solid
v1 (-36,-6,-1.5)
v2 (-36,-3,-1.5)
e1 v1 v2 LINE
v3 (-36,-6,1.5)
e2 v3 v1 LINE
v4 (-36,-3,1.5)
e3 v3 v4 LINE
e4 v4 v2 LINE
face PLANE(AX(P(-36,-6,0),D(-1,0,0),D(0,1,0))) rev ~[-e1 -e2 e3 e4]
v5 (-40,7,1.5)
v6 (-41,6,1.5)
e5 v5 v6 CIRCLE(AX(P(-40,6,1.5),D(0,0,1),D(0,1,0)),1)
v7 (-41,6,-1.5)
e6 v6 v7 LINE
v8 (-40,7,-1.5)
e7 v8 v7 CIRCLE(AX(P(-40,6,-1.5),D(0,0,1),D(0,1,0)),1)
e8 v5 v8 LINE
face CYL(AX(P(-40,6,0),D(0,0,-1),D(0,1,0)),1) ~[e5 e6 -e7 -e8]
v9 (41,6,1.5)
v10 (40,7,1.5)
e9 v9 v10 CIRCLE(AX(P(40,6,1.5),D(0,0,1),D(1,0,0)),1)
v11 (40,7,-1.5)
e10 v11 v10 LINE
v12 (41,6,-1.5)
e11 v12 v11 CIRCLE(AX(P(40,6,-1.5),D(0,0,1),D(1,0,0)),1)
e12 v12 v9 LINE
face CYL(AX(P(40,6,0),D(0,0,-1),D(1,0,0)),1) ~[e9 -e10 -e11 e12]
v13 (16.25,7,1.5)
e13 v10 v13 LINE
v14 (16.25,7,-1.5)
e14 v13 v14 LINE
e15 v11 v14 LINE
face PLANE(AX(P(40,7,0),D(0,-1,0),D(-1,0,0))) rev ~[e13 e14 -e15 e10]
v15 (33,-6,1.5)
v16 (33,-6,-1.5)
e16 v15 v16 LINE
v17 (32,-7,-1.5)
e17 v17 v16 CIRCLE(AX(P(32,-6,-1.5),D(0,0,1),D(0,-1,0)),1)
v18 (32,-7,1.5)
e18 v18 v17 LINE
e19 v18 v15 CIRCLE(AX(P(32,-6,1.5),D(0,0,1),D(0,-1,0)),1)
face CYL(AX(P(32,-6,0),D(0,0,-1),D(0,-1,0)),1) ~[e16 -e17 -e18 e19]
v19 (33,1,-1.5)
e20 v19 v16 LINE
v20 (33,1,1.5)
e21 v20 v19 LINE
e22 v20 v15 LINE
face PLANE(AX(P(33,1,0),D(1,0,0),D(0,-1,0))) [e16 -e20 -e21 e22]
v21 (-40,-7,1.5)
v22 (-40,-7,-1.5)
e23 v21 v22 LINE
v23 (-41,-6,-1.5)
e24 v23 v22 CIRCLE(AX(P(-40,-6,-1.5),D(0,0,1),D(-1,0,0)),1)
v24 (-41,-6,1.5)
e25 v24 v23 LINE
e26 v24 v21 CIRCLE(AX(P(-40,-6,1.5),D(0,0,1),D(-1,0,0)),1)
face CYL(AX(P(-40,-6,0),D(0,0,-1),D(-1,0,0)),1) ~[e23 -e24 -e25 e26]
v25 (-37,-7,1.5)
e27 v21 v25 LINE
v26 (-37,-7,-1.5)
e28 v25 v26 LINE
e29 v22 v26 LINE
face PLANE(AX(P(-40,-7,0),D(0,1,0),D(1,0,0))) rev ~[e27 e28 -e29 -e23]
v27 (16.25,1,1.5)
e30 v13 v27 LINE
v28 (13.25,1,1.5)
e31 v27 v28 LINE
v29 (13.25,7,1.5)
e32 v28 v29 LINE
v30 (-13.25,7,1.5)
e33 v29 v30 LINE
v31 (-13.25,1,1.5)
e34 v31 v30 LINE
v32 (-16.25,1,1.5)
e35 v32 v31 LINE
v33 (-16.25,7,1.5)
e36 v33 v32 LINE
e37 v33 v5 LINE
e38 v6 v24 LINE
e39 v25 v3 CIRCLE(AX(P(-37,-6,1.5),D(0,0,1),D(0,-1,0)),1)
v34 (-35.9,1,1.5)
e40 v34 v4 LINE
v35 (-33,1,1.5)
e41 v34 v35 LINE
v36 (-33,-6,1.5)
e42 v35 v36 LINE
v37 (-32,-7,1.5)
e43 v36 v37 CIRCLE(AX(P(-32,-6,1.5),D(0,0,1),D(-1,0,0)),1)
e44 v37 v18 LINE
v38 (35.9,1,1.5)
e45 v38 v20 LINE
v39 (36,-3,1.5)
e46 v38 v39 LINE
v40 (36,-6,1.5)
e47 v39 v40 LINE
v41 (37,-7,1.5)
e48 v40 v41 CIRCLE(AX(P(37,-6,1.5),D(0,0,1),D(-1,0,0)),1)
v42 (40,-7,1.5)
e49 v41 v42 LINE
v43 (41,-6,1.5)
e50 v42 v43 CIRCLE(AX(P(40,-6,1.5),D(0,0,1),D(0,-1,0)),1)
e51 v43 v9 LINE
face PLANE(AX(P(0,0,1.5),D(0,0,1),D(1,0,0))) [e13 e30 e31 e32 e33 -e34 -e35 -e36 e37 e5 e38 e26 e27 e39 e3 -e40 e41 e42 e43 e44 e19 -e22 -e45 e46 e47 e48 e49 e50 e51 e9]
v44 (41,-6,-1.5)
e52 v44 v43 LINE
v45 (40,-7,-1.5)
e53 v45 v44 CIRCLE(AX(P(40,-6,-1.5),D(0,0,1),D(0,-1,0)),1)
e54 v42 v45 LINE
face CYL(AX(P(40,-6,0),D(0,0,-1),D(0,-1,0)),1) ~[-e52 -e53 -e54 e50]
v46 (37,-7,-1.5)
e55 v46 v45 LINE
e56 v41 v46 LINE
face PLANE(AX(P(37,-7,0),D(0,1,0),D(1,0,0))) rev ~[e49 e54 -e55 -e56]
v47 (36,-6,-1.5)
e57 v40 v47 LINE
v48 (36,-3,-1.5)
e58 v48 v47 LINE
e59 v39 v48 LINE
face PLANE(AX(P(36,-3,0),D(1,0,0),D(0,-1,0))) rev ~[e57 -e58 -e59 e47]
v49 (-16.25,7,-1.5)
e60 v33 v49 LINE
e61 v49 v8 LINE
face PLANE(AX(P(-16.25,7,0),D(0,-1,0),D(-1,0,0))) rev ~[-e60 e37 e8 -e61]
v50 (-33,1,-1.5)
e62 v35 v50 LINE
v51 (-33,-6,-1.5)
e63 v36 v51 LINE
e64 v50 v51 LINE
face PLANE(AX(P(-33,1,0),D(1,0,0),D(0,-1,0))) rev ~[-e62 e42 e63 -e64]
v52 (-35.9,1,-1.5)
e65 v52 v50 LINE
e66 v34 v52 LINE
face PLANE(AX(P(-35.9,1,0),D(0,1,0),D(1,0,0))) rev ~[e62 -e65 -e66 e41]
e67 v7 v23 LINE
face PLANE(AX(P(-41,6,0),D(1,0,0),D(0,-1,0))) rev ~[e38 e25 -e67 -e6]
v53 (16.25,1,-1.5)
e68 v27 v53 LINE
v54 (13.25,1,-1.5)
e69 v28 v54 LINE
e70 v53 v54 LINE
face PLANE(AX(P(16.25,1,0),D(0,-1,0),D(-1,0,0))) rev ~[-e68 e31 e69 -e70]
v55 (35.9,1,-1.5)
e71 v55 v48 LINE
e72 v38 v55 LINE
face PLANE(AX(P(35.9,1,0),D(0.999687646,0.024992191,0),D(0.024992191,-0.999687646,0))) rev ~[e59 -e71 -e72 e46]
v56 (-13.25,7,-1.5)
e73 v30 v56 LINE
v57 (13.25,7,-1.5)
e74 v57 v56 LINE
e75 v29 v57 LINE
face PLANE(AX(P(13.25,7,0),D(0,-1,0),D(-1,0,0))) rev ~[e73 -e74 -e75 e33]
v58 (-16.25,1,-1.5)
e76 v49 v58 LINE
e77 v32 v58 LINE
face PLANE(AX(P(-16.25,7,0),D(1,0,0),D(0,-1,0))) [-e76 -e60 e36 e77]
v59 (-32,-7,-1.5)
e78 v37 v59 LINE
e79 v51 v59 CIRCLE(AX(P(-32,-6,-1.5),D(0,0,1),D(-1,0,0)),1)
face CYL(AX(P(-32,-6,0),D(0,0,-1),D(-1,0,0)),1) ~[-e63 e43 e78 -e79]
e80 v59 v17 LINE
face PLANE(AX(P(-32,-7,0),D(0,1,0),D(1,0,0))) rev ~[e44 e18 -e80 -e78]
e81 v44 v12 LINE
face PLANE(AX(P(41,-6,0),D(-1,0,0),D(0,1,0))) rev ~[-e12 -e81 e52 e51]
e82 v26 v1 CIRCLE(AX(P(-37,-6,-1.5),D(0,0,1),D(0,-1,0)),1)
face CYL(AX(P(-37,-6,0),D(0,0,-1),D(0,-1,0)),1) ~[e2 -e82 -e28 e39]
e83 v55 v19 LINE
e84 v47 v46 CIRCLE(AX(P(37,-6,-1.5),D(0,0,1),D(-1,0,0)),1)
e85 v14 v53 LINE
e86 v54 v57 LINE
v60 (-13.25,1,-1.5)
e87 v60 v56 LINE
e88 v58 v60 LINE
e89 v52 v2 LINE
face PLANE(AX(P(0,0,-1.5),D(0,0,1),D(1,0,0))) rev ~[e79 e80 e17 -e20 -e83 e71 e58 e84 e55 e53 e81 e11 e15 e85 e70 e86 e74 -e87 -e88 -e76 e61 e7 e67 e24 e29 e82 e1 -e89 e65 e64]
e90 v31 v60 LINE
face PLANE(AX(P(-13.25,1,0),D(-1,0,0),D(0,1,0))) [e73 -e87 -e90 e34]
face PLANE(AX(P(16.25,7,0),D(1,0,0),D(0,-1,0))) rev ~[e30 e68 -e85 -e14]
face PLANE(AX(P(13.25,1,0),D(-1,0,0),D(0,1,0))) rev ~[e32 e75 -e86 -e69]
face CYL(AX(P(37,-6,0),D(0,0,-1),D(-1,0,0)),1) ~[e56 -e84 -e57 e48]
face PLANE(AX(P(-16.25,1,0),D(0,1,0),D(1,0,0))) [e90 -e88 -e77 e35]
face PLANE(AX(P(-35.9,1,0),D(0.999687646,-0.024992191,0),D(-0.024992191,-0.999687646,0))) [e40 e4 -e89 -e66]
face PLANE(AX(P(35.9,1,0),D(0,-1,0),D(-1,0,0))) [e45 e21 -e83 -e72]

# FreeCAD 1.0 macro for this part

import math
import FreeCAD as App
import Part
import Sketcher
from FreeCAD import Vector

doc = App.newDocument("Part")
body = doc.addObject("PartDesign::Body", "Body")

# Sketch on XY plane
sketch1 = body.newObject("Sketcher::SketchObject", "Sketch")
sketch1.AttachmentSupport = (doc.getObject("XY_Plane"), [""])
sketch1.MapMode = "FlatFace"
sketch1.addGeometry([
    Part.ArcOfCircle(Part.Circle(Vector(40, -6, 0), Vector(0, 0, 1), 1), math.radians(-90), math.radians(0)),  # 0
    Part.LineSegment(Vector(41, -6, 0), Vector(41, 6, 0)),  # 1
    Part.ArcOfCircle(Part.Circle(Vector(40, 6, 0), Vector(0, 0, 1), 1), math.radians(0), math.radians(90)),  # 2
    Part.LineSegment(Vector(40, 7, 0), Vector(16.2, 7, 0)),  # 3
    Part.LineSegment(Vector(16.2, 7, 0), Vector(16.2, 1, 0)),  # 4
    Part.LineSegment(Vector(16.2, 1, 0), Vector(13.2, 1, 0)),  # 5
    Part.LineSegment(Vector(13.2, 1, 0), Vector(13.2, 7, 0)),  # 6
    Part.LineSegment(Vector(13.2, 7, 0), Vector(-13.2, 7, 0)),  # 7
    Part.LineSegment(Vector(-13.2, 7, 0), Vector(-13.2, 1, 0)),  # 8
    Part.LineSegment(Vector(-13.2, 1, 0), Vector(-16.2, 1, 0)),  # 9
    Part.LineSegment(Vector(-16.2, 1, 0), Vector(-16.2, 7, 0)),  # 10
    Part.LineSegment(Vector(-16.2, 7, 0), Vector(-40, 7, 0)),  # 11
    Part.ArcOfCircle(Part.Circle(Vector(-40, 6, 0), Vector(0, 0, 1), 1), math.radians(90), math.radians(180)),  # 12
    Part.LineSegment(Vector(-41, 6, 0), Vector(-41, -6, 0)),  # 13
    Part.ArcOfCircle(Part.Circle(Vector(-40, -6, 0), Vector(0, 0, 1), 1), math.radians(180), math.radians(270)),  # 14
    Part.LineSegment(Vector(-40, -7, 0), Vector(-37, -7, 0)),  # 15
    Part.ArcOfCircle(Part.Circle(Vector(-37, -6, 0), Vector(0, 0, 1), 1), math.radians(-90), math.radians(0)),  # 16
    Part.LineSegment(Vector(-36, -6, 0), Vector(-36, -3, 0)),  # 17
    Part.LineSegment(Vector(-36, -3, 0), Vector(-35.9, 1, 0)),  # 18
    Part.LineSegment(Vector(-35.9, 1, 0), Vector(-33, 1, 0)),  # 19
    Part.LineSegment(Vector(-33, 1, 0), Vector(-33, -6, 0)),  # 20
    Part.ArcOfCircle(Part.Circle(Vector(-32, -6, 0), Vector(0, 0, 1), 1), math.radians(180), math.radians(270)),  # 21
    Part.LineSegment(Vector(-32, -7, 0), Vector(32, -7, 0)),  # 22
    Part.ArcOfCircle(Part.Circle(Vector(32, -6, 0), Vector(0, 0, 1), 1), math.radians(-90), math.radians(0)),  # 23
    Part.LineSegment(Vector(33, -6, 0), Vector(33, 1, 0)),  # 24
    Part.LineSegment(Vector(33, 1, 0), Vector(35.9, 1, 0)),  # 25
    Part.LineSegment(Vector(35.9, 1, 0), Vector(36, -3, 0)),  # 26
    Part.LineSegment(Vector(36, -3, 0), Vector(36, -6, 0)),  # 27
    Part.ArcOfCircle(Part.Circle(Vector(37, -6, 0), Vector(0, 0, 1), 1), math.radians(180), math.radians(270)),  # 28
    Part.LineSegment(Vector(37, -7, 0), Vector(40, -7, 0)),  # 29
], False)
sketch1.addConstraint([
    Sketcher.Constraint("Tangent", 0, 2, 1, 1),
    Sketcher.Constraint("Tangent", 1, 2, 2, 1),
    Sketcher.Constraint("Tangent", 2, 2, 3, 1),
    Sketcher.Constraint("Coincident", 3, 2, 4, 1),
    Sketcher.Constraint("Coincident", 4, 2, 5, 1),
    Sketcher.Constraint("Coincident", 5, 2, 6, 1),
    Sketcher.Constraint("Coincident", 6, 2, 7, 1),
    Sketcher.Constraint("Coincident", 7, 2, 8, 1),
    Sketcher.Constraint("Coincident", 8, 2, 9, 1),
    Sketcher.Constraint("Coincident", 9, 2, 10, 1),
    Sketcher.Constraint("Coincident", 10, 2, 11, 1),
    Sketcher.Constraint("Tangent", 11, 2, 12, 1),
    Sketcher.Constraint("Tangent", 12, 2, 13, 1),
    Sketcher.Constraint("Tangent", 13, 2, 14, 1),
    Sketcher.Constraint("Tangent", 14, 2, 15, 1),
    Sketcher.Constraint("Tangent", 15, 2, 16, 1),
    Sketcher.Constraint("Tangent", 16, 2, 17, 1),
    Sketcher.Constraint("Coincident", 17, 2, 18, 1),
    Sketcher.Constraint("Coincident", 18, 2, 19, 1),
    Sketcher.Constraint("Coincident", 19, 2, 20, 1),
    Sketcher.Constraint("Tangent", 20, 2, 21, 1),
    Sketcher.Constraint("Tangent", 21, 2, 22, 1),
    Sketcher.Constraint("Tangent", 22, 2, 23, 1),
    Sketcher.Constraint("Tangent", 23, 2, 24, 1),
    Sketcher.Constraint("Coincident", 24, 2, 25, 1),
    Sketcher.Constraint("Coincident", 25, 2, 26, 1),
    Sketcher.Constraint("Coincident", 26, 2, 27, 1),
    Sketcher.Constraint("Tangent", 27, 2, 28, 1),
    Sketcher.Constraint("Tangent", 28, 2, 29, 1),
    Sketcher.Constraint("Tangent", 29, 2, 0, 1),
    Sketcher.Constraint("Vertical", 1),
    Sketcher.Constraint("Horizontal", 3),
    Sketcher.Constraint("Vertical", 4),
    Sketcher.Constraint("Horizontal", 5),
    Sketcher.Constraint("Vertical", 6),
    Sketcher.Constraint("Horizontal", 7),
    Sketcher.Constraint("Vertical", 8),
    Sketcher.Constraint("Horizontal", 9),
    Sketcher.Constraint("Vertical", 10),
    Sketcher.Constraint("Horizontal", 11),
    Sketcher.Constraint("Vertical", 13),
    Sketcher.Constraint("Horizontal", 15),
    Sketcher.Constraint("Vertical", 17),
    Sketcher.Constraint("Horizontal", 19),
    Sketcher.Constraint("Vertical", 20),
    Sketcher.Constraint("Horizontal", 22),
    Sketcher.Constraint("Vertical", 24),
    Sketcher.Constraint("Horizontal", 25),
    Sketcher.Constraint("Vertical", 27),
    Sketcher.Constraint("Horizontal", 29),
    Sketcher.Constraint("Equal", 0, 2),
    Sketcher.Constraint("Equal", 2, 12),
    Sketcher.Constraint("Equal", 12, 14),
    Sketcher.Constraint("Equal", 14, 16),
    Sketcher.Constraint("Equal", 16, 21),
    Sketcher.Constraint("Equal", 21, 23),
    Sketcher.Constraint("Equal", 23, 28),
    Sketcher.Constraint("Symmetric", 0, 3, 12, 3, -1, 1),
    Sketcher.Constraint("Symmetric", 16, 3, 28, 3, -2),
    Sketcher.Constraint("Symmetric", 5, 2, 8, 2, -2),
    Sketcher.Constraint("Symmetric", 3, 2, 10, 2, -2),
    Sketcher.Constraint("Symmetric", 19, 2, 24, 2, -2),
    Sketcher.Constraint("Horizontal", 16, 3, 21, 3),
    Sketcher.Constraint("Horizontal", 3, 2, 6, 2),
    Sketcher.Constraint("Horizontal", 9, 2, 18, 2),
    Sketcher.Constraint("Horizontal", 17, 2, 26, 2),
    Sketcher.Constraint("Equal", 9, 15),
    Sketcher.Constraint("Equal", 19, 25),
    Sketcher.Constraint("Equal", 29, 17),
    Sketcher.Constraint("Radius", 0, 1.0),
    Sketcher.Constraint("DistanceX", 5, 2, 5, 1, 3.0),
    Sketcher.Constraint("DistanceY", 4, 2, 4, 1, 6.0),
    Sketcher.Constraint("DistanceY", 0, 3, -1, 1, 6.0),
    Sketcher.Constraint("DistanceX", 19, 2, -1, 1, 33.0),
    Sketcher.Constraint("DistanceX", 16, 3, 21, 3, 5.0),
    Sketcher.Constraint("DistanceX", 17, 2, 18, 2, 0.1),
    Sketcher.Constraint("DistanceX", 7, 2, 7, 1, 26.5),
])
pad1 = body.newObject("PartDesign::Pad", "Pad")
pad1.Profile = sketch1
pad1.Length = 3
pad1.Midplane = True

doc.recompute()
